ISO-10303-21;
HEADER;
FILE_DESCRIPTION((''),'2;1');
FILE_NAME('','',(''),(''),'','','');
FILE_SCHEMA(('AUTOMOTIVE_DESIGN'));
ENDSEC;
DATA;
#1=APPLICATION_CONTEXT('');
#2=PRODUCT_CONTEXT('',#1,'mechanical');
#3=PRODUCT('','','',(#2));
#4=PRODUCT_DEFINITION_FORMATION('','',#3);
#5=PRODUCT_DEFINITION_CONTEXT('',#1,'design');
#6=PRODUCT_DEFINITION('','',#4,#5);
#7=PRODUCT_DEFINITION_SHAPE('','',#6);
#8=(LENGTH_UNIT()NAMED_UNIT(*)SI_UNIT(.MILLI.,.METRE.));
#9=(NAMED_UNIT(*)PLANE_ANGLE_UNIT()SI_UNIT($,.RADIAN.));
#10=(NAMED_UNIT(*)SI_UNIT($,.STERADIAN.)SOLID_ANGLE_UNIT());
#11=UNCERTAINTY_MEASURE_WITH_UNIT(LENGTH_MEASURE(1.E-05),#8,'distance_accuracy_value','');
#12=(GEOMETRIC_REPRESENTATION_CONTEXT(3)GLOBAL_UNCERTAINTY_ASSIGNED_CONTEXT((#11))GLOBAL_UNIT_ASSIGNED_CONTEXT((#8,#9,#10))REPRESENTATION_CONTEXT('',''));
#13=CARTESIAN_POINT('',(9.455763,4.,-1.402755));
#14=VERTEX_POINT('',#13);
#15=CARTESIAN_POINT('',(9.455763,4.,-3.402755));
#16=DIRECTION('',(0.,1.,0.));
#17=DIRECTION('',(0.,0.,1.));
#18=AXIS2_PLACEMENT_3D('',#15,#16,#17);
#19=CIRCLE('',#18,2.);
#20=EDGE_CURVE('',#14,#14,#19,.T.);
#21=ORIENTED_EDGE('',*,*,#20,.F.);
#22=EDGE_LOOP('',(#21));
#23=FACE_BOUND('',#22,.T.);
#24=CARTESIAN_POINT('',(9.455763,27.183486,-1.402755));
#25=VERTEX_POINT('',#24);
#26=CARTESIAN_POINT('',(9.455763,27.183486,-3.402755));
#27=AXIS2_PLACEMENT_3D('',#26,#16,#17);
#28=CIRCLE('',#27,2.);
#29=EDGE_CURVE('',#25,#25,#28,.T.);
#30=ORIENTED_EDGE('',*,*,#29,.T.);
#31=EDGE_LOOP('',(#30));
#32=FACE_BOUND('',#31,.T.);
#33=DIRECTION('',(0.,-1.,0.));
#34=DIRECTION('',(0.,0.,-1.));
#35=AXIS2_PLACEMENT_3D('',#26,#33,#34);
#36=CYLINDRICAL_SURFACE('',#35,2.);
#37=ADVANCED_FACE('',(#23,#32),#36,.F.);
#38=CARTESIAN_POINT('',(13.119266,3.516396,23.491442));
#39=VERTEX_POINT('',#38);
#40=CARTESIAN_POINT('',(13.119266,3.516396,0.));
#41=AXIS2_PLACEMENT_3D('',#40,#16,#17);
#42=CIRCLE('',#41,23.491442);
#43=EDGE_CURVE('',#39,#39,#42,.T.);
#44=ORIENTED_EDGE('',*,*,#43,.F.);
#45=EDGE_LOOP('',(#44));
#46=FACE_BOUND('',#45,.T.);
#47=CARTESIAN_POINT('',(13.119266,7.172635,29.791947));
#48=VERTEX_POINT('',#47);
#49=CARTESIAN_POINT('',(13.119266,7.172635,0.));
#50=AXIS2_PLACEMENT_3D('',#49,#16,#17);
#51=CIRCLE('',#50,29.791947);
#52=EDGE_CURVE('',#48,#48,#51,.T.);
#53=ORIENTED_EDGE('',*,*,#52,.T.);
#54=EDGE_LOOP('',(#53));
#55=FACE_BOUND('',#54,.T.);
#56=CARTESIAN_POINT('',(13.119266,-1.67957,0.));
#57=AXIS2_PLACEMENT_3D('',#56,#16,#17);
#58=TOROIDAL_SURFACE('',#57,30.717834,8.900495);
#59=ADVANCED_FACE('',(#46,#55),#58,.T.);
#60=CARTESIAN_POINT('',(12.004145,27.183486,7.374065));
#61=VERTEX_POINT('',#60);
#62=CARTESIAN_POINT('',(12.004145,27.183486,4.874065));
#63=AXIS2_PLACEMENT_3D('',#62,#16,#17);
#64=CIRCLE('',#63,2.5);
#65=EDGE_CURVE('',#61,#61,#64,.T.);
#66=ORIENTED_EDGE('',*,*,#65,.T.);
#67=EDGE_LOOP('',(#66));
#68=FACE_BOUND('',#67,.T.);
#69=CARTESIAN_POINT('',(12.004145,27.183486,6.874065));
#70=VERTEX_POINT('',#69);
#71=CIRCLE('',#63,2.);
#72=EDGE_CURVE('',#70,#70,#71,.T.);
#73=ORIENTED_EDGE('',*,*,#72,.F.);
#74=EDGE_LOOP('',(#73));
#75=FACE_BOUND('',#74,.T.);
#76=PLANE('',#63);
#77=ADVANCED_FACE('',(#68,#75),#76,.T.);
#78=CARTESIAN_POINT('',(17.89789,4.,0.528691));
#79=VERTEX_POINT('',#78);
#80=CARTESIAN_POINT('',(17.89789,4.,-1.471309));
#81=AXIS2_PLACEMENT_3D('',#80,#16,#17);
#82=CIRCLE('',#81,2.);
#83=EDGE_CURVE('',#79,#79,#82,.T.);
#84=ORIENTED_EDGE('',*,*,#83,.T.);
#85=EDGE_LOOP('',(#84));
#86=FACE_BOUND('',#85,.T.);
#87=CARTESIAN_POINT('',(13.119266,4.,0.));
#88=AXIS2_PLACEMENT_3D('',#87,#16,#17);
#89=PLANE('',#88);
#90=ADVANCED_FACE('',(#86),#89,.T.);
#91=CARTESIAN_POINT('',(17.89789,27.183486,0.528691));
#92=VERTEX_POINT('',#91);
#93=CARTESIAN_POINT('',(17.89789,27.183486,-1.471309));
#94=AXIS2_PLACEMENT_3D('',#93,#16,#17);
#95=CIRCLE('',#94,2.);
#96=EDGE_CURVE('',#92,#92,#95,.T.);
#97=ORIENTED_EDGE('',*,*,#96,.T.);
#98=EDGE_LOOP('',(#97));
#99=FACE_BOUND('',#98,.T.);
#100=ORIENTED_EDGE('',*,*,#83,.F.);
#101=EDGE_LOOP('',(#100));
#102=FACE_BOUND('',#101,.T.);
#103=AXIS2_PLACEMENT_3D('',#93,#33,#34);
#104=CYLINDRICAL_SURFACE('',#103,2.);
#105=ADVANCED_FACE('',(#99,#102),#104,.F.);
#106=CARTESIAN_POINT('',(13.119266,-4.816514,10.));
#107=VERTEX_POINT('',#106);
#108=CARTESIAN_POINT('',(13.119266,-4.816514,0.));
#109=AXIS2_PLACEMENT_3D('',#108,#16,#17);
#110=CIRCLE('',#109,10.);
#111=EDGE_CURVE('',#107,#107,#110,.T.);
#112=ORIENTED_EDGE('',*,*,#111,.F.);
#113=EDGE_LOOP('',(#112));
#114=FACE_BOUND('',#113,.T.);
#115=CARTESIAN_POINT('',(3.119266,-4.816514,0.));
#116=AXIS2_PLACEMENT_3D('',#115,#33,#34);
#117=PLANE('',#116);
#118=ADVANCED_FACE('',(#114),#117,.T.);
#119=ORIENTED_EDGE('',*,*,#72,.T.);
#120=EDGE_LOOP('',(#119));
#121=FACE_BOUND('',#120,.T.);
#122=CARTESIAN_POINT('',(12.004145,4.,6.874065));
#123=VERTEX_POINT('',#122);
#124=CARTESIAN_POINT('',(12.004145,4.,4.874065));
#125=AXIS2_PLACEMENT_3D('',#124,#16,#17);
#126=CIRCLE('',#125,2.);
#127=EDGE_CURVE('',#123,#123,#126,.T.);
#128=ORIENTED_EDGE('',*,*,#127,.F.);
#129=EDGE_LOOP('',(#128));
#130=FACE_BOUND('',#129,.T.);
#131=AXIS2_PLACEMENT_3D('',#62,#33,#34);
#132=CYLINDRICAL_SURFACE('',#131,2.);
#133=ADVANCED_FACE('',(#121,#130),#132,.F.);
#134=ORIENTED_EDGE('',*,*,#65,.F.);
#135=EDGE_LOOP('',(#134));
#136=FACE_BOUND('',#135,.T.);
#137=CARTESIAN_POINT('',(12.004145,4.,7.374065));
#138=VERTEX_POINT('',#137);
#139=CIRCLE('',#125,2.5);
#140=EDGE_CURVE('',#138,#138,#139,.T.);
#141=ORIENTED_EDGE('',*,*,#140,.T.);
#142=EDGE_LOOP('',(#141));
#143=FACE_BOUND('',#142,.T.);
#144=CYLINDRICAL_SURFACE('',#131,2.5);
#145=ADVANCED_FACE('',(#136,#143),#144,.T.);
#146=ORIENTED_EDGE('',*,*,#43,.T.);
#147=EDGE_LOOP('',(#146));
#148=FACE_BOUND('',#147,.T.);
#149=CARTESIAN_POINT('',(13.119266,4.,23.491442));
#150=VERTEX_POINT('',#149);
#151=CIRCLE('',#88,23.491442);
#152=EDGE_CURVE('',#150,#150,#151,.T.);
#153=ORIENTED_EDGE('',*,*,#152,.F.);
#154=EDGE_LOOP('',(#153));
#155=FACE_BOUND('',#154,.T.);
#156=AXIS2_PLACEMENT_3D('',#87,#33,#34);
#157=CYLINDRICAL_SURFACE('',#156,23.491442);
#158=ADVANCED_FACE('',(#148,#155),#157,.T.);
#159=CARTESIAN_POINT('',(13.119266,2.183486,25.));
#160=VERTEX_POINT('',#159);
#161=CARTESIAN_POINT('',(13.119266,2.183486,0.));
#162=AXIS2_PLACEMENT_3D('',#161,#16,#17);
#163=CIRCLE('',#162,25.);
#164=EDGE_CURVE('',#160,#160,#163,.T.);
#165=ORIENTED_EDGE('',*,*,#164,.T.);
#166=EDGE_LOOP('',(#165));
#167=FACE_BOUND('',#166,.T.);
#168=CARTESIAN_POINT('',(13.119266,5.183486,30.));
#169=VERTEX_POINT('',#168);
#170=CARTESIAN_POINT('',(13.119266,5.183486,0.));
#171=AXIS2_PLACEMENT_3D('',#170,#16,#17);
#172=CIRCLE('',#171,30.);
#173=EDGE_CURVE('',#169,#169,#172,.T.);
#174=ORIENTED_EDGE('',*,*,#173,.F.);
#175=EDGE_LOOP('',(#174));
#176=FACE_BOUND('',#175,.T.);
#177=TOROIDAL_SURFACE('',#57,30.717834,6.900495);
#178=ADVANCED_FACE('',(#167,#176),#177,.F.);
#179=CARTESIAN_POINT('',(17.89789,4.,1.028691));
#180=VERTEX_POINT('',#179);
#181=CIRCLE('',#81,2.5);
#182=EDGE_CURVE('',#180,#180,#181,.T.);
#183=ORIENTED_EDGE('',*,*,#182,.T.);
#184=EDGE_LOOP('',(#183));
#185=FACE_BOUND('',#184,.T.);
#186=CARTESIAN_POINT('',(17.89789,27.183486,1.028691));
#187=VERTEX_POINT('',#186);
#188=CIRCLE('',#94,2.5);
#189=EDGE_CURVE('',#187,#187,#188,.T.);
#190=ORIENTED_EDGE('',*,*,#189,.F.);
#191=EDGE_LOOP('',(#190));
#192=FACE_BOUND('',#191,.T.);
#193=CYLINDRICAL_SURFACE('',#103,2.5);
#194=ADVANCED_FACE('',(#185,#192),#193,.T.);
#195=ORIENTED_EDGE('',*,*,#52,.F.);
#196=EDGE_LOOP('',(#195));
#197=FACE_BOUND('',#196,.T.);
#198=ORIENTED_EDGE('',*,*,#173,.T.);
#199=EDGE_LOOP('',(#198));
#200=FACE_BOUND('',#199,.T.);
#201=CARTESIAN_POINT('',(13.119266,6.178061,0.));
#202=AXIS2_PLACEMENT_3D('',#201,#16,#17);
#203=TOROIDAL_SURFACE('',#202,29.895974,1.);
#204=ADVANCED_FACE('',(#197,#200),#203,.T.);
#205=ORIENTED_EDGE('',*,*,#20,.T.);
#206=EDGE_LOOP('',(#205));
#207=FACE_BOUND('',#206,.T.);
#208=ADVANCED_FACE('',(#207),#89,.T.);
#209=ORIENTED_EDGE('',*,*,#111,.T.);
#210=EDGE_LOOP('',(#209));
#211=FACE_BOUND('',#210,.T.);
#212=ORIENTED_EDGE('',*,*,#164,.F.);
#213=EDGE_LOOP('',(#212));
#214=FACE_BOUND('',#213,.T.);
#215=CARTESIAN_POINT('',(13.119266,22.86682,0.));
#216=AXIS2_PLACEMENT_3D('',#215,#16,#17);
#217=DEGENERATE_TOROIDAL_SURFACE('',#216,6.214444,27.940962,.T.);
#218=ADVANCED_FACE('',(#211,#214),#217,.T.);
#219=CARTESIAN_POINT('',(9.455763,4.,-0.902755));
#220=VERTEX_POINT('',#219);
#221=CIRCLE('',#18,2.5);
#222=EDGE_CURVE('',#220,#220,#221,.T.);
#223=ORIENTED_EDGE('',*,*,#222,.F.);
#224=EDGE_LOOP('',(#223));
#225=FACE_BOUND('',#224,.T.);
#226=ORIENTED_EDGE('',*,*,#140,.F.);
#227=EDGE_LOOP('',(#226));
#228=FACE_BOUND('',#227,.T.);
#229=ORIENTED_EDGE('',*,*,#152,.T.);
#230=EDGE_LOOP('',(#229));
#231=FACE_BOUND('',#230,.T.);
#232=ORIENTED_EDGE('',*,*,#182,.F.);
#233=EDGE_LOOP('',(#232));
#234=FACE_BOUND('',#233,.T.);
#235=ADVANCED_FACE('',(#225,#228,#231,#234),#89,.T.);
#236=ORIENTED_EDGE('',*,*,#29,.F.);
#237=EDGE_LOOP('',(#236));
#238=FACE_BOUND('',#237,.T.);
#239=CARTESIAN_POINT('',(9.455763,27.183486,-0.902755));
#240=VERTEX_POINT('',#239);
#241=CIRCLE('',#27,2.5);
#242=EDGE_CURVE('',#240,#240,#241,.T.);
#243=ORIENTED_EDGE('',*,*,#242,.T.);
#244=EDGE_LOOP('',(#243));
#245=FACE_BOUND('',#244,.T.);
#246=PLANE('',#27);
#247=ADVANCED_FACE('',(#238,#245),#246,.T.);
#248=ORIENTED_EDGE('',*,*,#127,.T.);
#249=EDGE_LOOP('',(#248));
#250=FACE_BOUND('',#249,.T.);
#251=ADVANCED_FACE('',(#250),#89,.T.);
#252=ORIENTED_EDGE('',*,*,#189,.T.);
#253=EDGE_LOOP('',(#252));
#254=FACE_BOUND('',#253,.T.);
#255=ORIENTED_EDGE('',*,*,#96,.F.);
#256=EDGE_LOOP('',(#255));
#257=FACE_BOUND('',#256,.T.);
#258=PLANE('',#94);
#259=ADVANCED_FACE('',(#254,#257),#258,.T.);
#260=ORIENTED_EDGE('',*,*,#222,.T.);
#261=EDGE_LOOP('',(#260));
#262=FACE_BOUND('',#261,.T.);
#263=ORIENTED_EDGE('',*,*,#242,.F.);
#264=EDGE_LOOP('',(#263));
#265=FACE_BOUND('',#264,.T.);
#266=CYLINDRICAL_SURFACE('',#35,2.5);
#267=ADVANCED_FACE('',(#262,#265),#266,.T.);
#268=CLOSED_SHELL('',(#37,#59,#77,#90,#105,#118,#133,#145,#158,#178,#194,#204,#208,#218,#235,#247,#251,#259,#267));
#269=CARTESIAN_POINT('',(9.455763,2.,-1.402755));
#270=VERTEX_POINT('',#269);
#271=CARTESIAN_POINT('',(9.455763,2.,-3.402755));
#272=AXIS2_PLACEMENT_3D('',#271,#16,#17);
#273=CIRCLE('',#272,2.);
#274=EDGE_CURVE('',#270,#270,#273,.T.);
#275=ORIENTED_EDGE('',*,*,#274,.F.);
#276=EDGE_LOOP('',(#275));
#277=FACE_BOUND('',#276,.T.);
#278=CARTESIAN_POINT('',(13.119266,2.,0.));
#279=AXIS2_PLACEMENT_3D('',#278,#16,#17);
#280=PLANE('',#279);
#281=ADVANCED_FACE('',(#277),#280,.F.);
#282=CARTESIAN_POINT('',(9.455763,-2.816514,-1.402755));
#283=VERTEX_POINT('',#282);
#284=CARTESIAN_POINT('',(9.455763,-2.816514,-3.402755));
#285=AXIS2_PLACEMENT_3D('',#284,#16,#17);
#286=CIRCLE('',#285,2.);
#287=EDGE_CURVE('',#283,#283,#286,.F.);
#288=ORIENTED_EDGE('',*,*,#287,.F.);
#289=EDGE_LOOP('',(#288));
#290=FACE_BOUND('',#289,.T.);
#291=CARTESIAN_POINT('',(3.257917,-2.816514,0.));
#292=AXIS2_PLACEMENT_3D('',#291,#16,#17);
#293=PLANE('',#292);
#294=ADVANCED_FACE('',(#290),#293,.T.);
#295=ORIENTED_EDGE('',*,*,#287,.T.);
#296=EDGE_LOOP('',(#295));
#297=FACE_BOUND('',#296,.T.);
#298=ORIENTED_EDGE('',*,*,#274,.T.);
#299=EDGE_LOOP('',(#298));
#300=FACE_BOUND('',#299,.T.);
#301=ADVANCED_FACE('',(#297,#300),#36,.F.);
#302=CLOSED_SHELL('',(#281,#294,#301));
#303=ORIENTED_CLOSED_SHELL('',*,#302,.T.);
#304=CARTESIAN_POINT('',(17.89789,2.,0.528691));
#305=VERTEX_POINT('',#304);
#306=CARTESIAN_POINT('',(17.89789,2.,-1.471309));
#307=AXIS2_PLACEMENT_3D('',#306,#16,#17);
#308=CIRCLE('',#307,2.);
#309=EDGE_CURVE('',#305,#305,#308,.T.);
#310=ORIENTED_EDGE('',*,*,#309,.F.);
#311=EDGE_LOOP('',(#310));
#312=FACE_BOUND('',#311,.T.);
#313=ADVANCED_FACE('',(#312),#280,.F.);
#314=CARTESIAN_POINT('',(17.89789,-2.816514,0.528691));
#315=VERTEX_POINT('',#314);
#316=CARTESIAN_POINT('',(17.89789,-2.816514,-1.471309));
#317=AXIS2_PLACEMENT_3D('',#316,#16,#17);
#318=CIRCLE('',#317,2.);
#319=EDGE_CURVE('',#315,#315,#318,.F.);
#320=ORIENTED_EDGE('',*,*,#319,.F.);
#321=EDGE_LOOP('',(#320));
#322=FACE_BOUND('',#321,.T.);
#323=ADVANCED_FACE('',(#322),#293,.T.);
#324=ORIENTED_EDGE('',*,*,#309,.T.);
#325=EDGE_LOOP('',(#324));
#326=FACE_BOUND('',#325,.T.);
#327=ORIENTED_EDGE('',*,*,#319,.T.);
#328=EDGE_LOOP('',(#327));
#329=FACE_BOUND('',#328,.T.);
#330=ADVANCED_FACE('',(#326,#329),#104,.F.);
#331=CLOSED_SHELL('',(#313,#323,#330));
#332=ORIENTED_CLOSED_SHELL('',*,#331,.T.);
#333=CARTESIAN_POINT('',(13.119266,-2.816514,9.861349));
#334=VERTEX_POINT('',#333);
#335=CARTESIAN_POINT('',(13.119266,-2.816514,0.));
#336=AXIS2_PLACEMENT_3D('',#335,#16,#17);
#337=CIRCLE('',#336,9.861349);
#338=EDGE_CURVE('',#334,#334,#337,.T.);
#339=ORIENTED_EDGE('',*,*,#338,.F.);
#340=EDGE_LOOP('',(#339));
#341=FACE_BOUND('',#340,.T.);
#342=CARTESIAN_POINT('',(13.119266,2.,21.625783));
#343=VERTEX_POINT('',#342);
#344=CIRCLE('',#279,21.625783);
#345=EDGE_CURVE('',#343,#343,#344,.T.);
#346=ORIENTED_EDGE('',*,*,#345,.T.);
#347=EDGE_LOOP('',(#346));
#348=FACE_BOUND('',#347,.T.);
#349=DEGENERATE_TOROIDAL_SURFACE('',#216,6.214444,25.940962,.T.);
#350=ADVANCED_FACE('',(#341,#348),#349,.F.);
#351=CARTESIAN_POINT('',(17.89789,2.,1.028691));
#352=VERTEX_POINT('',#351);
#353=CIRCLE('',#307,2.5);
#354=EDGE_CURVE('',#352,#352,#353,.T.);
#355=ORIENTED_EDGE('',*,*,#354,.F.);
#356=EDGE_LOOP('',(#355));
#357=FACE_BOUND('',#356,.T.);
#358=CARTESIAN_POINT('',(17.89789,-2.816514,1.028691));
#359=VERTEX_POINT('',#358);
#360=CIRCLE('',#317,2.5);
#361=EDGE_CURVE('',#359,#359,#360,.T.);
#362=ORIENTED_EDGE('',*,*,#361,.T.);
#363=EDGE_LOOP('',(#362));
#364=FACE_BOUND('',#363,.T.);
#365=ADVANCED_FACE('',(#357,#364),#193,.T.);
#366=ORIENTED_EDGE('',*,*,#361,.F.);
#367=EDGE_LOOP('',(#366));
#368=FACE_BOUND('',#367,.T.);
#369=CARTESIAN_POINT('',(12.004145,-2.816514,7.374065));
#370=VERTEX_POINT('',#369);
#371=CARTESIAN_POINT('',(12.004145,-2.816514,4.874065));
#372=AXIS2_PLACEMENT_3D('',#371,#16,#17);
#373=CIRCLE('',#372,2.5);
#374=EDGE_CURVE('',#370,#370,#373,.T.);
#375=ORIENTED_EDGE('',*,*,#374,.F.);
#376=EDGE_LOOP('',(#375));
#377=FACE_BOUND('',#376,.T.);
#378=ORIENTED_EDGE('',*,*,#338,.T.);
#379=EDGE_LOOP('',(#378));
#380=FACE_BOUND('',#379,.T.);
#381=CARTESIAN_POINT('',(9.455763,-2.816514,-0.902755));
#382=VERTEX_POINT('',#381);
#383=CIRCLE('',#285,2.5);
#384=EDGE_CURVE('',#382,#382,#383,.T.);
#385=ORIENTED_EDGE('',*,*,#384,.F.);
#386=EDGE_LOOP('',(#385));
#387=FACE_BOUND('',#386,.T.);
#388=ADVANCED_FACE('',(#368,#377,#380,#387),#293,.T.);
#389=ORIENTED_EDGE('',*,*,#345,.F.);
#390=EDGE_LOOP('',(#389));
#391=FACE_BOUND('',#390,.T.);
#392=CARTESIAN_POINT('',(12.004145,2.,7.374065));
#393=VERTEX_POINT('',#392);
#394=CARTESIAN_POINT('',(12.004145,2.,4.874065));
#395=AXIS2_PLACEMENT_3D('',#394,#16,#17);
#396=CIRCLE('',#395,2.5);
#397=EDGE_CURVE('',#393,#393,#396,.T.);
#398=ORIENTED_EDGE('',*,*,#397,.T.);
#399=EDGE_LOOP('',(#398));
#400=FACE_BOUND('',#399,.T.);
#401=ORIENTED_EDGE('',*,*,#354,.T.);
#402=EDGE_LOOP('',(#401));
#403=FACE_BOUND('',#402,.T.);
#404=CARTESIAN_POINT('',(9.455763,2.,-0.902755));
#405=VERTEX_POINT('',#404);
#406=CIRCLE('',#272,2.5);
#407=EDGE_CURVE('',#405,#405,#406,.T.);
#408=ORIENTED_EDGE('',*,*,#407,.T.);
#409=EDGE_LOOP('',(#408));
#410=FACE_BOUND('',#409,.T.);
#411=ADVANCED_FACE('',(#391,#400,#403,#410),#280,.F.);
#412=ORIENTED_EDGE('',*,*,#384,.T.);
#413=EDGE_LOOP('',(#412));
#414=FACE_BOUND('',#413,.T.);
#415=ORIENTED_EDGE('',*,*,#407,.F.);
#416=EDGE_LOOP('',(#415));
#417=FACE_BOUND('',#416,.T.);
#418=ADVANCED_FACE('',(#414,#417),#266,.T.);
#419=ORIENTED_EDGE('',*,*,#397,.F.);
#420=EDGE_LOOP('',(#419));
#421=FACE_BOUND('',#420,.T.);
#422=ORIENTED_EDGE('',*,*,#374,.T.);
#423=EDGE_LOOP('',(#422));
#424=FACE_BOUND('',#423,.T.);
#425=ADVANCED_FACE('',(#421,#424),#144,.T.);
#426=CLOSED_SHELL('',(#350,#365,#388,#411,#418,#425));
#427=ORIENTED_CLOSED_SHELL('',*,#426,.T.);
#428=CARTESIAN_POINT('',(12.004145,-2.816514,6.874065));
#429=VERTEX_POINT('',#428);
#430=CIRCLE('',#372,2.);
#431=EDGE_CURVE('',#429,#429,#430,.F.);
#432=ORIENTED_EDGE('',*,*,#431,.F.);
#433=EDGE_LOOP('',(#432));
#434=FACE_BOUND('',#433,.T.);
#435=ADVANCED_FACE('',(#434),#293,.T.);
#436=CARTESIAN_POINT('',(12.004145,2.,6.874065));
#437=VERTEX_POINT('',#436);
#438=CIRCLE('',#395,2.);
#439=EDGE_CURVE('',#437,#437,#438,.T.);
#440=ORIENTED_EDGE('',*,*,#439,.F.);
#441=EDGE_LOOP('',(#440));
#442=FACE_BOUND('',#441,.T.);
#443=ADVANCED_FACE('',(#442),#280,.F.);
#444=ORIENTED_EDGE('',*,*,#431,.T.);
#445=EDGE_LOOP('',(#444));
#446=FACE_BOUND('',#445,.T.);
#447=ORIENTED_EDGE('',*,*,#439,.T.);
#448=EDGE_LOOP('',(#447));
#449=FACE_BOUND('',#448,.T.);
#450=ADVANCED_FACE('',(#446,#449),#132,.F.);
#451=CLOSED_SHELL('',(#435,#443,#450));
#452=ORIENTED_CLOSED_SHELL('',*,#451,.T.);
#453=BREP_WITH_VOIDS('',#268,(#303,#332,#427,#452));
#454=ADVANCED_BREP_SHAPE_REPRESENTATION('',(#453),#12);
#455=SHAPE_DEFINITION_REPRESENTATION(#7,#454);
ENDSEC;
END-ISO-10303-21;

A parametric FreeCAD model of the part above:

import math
import FreeCAD as App
import Part
import Sketcher

V = App.Vector
Q = App.Units.Quantity

doc = App.newDocument("Part")
body = doc.addObject("PartDesign::Body", "Body")

sketch1 = body.newObject("Sketcher::SketchObject", "Sketch")
sketch1.AttachmentSupport = (doc.getObject("XY_Plane"), [""])
sketch1.MapMode = "FlatFace"
sketch1.addGeometry([
    Part.LineSegment(V(3.1, -4.8, 0), V(13.1, -4.8, 0)),
    Part.LineSegment(V(13.1, -4.8, 0), V(13.1, -2.8, 0)),
    Part.LineSegment(V(13.1, -2.8, 0), V(3.3, -2.8, 0)),
    Part.ArcOfCircle(Part.Circle(V(6.9, 22.9, 0), V(0, 0, 1), 25.9), math.radians(-132), math.radians(-98)),
    Part.ArcOfCircle(Part.Circle(V(-17.6, -1.7, 0), V(0, 0, 1), 8.9), math.radians(36), math.radians(84)),
    Part.ArcOfCircle(Part.Circle(V(-16.8, 6.2, 0), V(0, 0, 1), 1), math.radians(84), math.radians(264)),
    Part.ArcOfCircle(Part.Circle(V(-17.6, -1.7, 0), V(0, 0, 1), 6.9), math.radians(34), math.radians(84)),
    Part.ArcOfCircle(Part.Circle(V(6.9, 22.9, 0), V(0, 0, 1), 27.9), math.radians(-132), math.radians(-98)),
], False)
sketch1.addGeometry(Part.LineSegment(V(13.1, 22.9, 0), V(13.1, -4.8, 0)), True)
sketch1.addConstraint([
    Sketcher.Constraint("Coincident", 0, 2, 1, 1),
    Sketcher.Constraint("Coincident", 1, 2, 2, 1),
    Sketcher.Constraint("Coincident", 2, 2, 3, 2),
    Sketcher.Constraint("Coincident", 3, 1, 4, 1),
    Sketcher.Constraint("Tangent", 4, 2, 5, 1),
    Sketcher.Constraint("Tangent", 5, 2, 6, 2),
    Sketcher.Constraint("Coincident", 6, 1, 7, 1),
    Sketcher.Constraint("Coincident", 7, 2, 0, 1),
    Sketcher.Constraint("Horizontal", 0),
    Sketcher.Constraint("Vertical", 1),
    Sketcher.Constraint("Horizontal", 2),
    Sketcher.Constraint("Vertical", 8),
    Sketcher.Constraint("Coincident", 6, 3, 4, 3),
    Sketcher.Constraint("Coincident", 7, 3, 3, 3),
    Sketcher.Constraint("Coincident", 8, 2, 0, 2),
    Sketcher.Constraint("Horizontal", 7, 3, 8, 1),
    Sketcher.Constraint("Radius", 5, Q("1 mm")),
    Sketcher.Constraint("DistanceX", 0, 1, 0, 2, Q("10 mm")),
    Sketcher.Constraint("DistanceY", 1, 1, 1, 2, Q("2 mm")),
    Sketcher.Constraint("DistanceX", 5, 2, 6, 1, Q("5 mm")),
    Sketcher.Constraint("DistanceY", 6, 1, 5, 2, Q("3 mm")),
    Sketcher.Constraint("DistanceX", 6, 1, 7, 2, Q("15 mm")),
    Sketcher.Constraint("DistanceY", 7, 2, 6, 1, Q("7 mm")),
    Sketcher.Constraint("Radius", 3, Q("25.940962 mm")),
    Sketcher.Constraint("Radius", 4, Q("8.900495 mm")),
    Sketcher.Constraint("Radius", 7, Q("27.940962 mm")),
    Sketcher.Constraint("DistanceX", -1, 1, 3, 3, Q("6.904822 mm")),
    Sketcher.Constraint("DistanceY", -1, 1, 3, 3, Q("22.86682 mm")),
])
revolution = body.newObject("PartDesign::Revolution", "Revolution")
revolution.Profile = sketch1
revolution.ReferenceAxis = (sketch1, ["Axis0"])
revolution.Angle = 360

sketch2 = body.newObject("Sketcher::SketchObject", "Sketch001")
sketch2.AttachmentSupport = (doc.getObject("XZ_Plane"), [""])
sketch2.MapMode = "FlatFace"
sketch2.AttachmentOffset = App.Placement(V(0, 0, 2.816514), App.Rotation())
sketch2.addGeometry([
    Part.Circle(V(9.5, -3.4, 0), V(0, 0, 1), 2.5),
    Part.Circle(V(9.5, -3.4, 0), V(0, 0, 1), 2),
    Part.Circle(V(17.9, -1.5, 0), V(0, 0, 1), 2.5),
    Part.Circle(V(17.9, -1.5, 0), V(0, 0, 1), 2),
    Part.Circle(V(12, 4.9, 0), V(0, 0, 1), 2.5),
    Part.Circle(V(12, 4.9, 0), V(0, 0, 1), 2),
], False)
sketch2.addConstraint([
    Sketcher.Constraint("Coincident", 1, 3, 0, 3),
    Sketcher.Constraint("Coincident", 3, 3, 2, 3),
    Sketcher.Constraint("Coincident", 5, 3, 4, 3),
    Sketcher.Constraint("Equal", 0, 2),
    Sketcher.Constraint("Equal", 1, 3),
    Sketcher.Constraint("Equal", 2, 4),
    Sketcher.Constraint("Equal", 3, 5),
    Sketcher.Constraint("Diameter", 0, Q("5 mm")),
    Sketcher.Constraint("Diameter", 1, Q("4 mm")),
    Sketcher.Constraint("DistanceX", -1, 1, 2, 3, Q("17.89789 mm")),
    Sketcher.Constraint("DistanceY", 2, 3, -1, 1, Q("1.471309 mm")),
    Sketcher.Constraint("DistanceY", 0, 3, 4, 3, Q("8.27682 mm")),
    Sketcher.Constraint("DistanceX", -1, 1, 0, 3, Q("9.455763 mm")),
    Sketcher.Constraint("DistanceY", 0, 3, -1, 1, Q("3.402755 mm")),
    Sketcher.Constraint("DistanceX", -1, 1, 4, 3, Q("12.004145 mm")),
])
pad1 = body.newObject("PartDesign::Pad", "Pad")
pad1.Profile = sketch2
pad1.Length = 30
pad1.Reversed = True

sketch3 = body.newObject("Sketcher::SketchObject", "Sketch002")
sketch3.AttachmentSupport = (doc.getObject("XZ_Plane"), [""])
sketch3.MapMode = "FlatFace"
sketch3.AttachmentOffset = App.Placement(V(0, 0, -2), App.Rotation())
sketch3.addGeometry(Part.Circle(V(13, 0, 0), V(0, 0, 1), 23), False)
sketch3.addConstraint([
    Sketcher.Constraint("PointOnObject", 0, 3, -1),
    Sketcher.Constraint("Diameter", 0, Q("46.982883 mm")),
    Sketcher.Constraint("DistanceX", -1, 1, 0, 3, Q("13.119266 mm")),
])
pad2 = body.newObject("PartDesign::Pad", "Pad001")
pad2.Profile = sketch3
pad2.Length = 2
pad2.Reversed = True

doc.recompute()
